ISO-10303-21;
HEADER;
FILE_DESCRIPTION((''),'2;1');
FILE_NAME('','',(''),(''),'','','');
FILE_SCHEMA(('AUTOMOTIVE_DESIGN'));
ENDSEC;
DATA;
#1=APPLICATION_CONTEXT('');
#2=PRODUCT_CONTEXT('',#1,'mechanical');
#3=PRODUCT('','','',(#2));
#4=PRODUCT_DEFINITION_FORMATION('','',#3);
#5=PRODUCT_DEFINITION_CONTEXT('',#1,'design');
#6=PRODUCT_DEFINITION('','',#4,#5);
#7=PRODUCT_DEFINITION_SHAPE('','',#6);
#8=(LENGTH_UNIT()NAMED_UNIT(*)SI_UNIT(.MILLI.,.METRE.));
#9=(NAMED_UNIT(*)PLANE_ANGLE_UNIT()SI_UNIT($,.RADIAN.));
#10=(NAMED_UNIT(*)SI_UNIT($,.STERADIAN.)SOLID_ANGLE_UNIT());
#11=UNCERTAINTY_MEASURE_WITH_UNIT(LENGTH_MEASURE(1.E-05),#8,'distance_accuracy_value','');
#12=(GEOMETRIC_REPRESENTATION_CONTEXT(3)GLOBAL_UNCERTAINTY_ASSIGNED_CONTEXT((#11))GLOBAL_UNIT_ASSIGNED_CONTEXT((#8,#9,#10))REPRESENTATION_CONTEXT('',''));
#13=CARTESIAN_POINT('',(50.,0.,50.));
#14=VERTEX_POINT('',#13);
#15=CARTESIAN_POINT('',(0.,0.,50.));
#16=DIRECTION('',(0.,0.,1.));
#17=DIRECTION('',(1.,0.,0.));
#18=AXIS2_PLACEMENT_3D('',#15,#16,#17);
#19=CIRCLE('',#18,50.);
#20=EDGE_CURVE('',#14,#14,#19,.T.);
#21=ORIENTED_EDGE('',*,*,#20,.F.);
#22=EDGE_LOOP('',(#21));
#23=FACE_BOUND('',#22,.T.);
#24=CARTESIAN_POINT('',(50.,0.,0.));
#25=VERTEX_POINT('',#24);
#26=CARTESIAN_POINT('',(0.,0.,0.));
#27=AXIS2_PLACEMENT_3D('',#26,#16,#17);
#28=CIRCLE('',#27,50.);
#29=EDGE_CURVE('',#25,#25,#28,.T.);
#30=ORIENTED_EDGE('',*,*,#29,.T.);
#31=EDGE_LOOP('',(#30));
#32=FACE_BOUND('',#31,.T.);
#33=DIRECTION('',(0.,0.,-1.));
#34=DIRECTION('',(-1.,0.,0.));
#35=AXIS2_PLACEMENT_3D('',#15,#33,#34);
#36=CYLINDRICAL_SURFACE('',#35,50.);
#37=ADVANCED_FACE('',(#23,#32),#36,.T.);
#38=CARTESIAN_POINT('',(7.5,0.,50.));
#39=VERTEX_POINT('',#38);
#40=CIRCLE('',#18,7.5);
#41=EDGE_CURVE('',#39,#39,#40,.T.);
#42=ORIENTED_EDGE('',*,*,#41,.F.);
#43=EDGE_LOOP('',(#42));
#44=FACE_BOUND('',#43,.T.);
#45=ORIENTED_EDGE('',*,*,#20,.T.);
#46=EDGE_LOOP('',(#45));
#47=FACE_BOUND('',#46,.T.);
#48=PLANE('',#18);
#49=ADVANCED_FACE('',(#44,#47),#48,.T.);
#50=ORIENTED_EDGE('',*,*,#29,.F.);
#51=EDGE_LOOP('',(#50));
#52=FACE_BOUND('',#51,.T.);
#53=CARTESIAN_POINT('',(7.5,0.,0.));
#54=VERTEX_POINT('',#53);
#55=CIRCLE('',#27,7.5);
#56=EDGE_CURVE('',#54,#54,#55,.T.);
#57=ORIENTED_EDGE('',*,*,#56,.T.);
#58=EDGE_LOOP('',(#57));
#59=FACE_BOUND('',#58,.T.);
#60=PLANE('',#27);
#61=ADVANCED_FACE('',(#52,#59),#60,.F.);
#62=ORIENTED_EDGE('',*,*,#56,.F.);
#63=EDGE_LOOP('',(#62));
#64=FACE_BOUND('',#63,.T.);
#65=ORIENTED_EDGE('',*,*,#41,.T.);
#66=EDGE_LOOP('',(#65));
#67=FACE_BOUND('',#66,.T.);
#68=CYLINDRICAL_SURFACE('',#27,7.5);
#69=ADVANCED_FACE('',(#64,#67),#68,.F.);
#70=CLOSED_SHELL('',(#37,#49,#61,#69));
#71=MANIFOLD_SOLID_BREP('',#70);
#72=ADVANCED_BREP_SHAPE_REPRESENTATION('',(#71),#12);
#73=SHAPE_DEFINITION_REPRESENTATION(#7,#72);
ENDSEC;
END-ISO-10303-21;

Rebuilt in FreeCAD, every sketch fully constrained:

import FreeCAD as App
import Part
import Sketcher
Q = App.Units.Quantity

doc = App.newDocument("Part")
body = doc.addObject("PartDesign::Body", "Body")

sketch1 = doc.addObject("Sketcher::SketchObject", "Sketch")
body.addObject(sketch1)
sketch1.AttachmentSupport = (doc.XY_Plane, [""])
sketch1.MapMode = "FlatFace"
sketch1.addGeometry(Part.Circle(App.Vector(0, 0, 0), App.Vector(0, 0, 1), 50), False)
sketch1.addConstraint([
    Sketcher.Constraint("Coincident", 0, 3, -1, 1),
    Sketcher.Constraint("Diameter", 0, Q("100 mm")),
])
pad1 = doc.addObject("PartDesign::Pad", "Pad")
body.addObject(pad1)
pad1.Profile = sketch1
pad1.Length = 50

sketch2 = doc.addObject("Sketcher::SketchObject", "Sketch001")
body.addObject(sketch2)
sketch2.AttachmentSupport = (doc.XY_Plane, [""])
sketch2.MapMode = "FlatFace"
sketch2.AttachmentOffset = App.Placement(App.Vector(0, 0, 50), App.Rotation())
sketch2.addGeometry(Part.Circle(App.Vector(0, 0, 0), App.Vector(0, 0, 1), 8), False)
sketch2.addConstraint([
    Sketcher.Constraint("Coincident", 0, 3, -1, 1),
    Sketcher.Constraint("Diameter", 0, Q("15 mm")),
])
pocket1 = doc.addObject("PartDesign::Pocket", "Pocket")
body.addObject(pocket1)
pocket1.Profile = sketch2
pocket1.Length = 50

doc.recompute()
